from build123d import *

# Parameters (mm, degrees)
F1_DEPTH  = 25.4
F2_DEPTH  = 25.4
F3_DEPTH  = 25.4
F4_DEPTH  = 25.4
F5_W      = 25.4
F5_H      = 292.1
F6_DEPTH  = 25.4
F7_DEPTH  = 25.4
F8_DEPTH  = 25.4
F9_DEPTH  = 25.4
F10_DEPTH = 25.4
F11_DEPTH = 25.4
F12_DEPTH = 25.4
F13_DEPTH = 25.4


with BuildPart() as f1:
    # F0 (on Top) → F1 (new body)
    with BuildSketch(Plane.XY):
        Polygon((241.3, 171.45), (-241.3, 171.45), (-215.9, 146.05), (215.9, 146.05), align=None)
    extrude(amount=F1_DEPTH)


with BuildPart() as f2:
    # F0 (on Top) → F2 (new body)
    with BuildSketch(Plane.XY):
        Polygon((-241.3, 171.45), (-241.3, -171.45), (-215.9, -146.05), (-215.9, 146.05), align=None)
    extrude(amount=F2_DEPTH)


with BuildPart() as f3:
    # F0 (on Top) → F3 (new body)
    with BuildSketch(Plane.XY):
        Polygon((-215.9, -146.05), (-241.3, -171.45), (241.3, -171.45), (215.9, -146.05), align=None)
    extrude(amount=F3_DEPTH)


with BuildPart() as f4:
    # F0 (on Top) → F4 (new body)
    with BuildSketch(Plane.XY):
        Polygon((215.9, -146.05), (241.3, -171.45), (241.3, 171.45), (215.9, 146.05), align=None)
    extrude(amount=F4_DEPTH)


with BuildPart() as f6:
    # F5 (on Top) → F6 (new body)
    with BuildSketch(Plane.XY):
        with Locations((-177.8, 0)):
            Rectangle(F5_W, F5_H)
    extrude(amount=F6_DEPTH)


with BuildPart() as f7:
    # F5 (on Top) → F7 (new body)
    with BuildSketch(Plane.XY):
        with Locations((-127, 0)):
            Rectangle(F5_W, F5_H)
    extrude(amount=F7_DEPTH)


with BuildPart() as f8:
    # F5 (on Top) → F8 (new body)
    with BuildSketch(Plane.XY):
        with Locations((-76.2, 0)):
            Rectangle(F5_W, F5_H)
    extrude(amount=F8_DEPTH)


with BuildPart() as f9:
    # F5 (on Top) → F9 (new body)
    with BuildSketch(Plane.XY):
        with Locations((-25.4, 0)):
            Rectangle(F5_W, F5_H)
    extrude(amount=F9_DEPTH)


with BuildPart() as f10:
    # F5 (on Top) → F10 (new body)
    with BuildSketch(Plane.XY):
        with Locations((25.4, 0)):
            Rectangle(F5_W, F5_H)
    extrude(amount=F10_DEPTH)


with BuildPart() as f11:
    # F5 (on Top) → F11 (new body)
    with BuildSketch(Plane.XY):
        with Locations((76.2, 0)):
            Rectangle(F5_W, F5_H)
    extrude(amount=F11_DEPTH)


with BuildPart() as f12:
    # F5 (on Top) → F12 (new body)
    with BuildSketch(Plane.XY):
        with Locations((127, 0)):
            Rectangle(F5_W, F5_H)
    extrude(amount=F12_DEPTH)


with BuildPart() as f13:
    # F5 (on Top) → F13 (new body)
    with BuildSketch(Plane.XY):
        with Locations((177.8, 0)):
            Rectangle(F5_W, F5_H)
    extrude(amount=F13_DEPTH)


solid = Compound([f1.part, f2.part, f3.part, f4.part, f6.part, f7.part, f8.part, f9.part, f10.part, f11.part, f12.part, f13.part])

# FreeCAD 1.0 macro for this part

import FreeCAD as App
import Part
import Sketcher

V = App.Vector
Q = App.Units.Quantity

doc = App.newDocument("Part")
params = doc.addObject("Spreadsheet::Sheet", "Params")
for row, (alias, value) in enumerate([
    ("sketch1_width", "19 in"),
    ("sketch1_width2", "17 in"),
    ("pad1_length", "1 in"),
    ("sketch2_height", "13.5 in"),
    ("sketch2_height2", "11.5 in"),
    ("pad2_length", "1 in"),
    ("sketch3_width", "19 in"),
    ("sketch3_width2", "17 in"),
    ("pad3_length", "1 in"),
    ("sketch4_height", "13.5 in"),
    ("sketch4_height2", "11.5 in"),
    ("pad4_length", "1 in"),
    ("sketch5_width", "1 in"),
    ("sketch5_height", "11.5 in"),
    ("pad5_length", "1 in"),
    ("sketch6_width", "1 in"),
    ("sketch6_height", "11.5 in"),
    ("pad6_length", "1 in"),
    ("sketch7_width", "1 in"),
    ("sketch7_height", "11.5 in"),
    ("pad7_length", "1 in"),
    ("sketch8_width", "1 in"),
    ("sketch8_height", "11.5 in"),
    ("pad8_length", "1 in"),
    ("sketch9_width", "1 in"),
    ("sketch9_height", "11.5 in"),
    ("pad9_length", "1 in"),
    ("sketch10_width", "1 in"),
    ("sketch10_height", "11.5 in"),
    ("pad10_length", "1 in"),
    ("sketch11_width", "1 in"),
    ("sketch11_height", "11.5 in"),
    ("pad11_length", "1 in"),
    ("sketch12_width", "1 in"),
    ("sketch12_height", "11.5 in"),
    ("pad12_length", "1 in"),
], start=1):
    params.set(f"A{row}", alias)
    params.set(f"B{row}", "=" + value)
    params.setAlias(f"B{row}", alias)

body = doc.addObject("PartDesign::Body", "Body")

# Sketch on XY plane
sketch1 = body.newObject("Sketcher::SketchObject", "Sketch")
sketch1.AttachmentSupport = (doc.getObject("XY_Plane"), [""])
sketch1.MapMode = "FlatFace"
sketch1.addGeometry([
    Part.LineSegment(V(241, 171, 0), V(-241, 171, 0)),
    Part.LineSegment(V(-241, 171, 0), V(-216, 146, 0)),
    Part.LineSegment(V(-216, 146, 0), V(216, 146, 0)),
    Part.LineSegment(V(216, 146, 0), V(241, 171, 0)),
], False)
sketch1.addConstraint([
    Sketcher.Constraint("Coincident", 0, 2, 1, 1),
    Sketcher.Constraint("Coincident", 1, 2, 2, 1),
    Sketcher.Constraint("Coincident", 2, 2, 3, 1),
    Sketcher.Constraint("Coincident", 3, 2, 0, 1),
    Sketcher.Constraint("Horizontal", 0),
    Sketcher.Constraint("Horizontal", 2),
    Sketcher.Constraint("Perpendicular", 1, 3),
    Sketcher.Constraint("Equal", 1, 3),
    Sketcher.Constraint("DistanceX", 0, 2, 0, 1, Q("19 in")),
    Sketcher.Constraint("DistanceX", 2, 1, 2, 2, Q("17 in")),
    Sketcher.Constraint("DistanceX", 0, 2, -1, 1, Q("9.5 in")),
    Sketcher.Constraint("DistanceY", -1, 1, 0, 2, Q("6.75 in")),
])
sketch1.setExpression("Constraints[8]", "Params.sketch1_width")
sketch1.setExpression("Constraints[9]", "Params.sketch1_width2")
pad1 = body.newObject("PartDesign::Pad", "Pad")
pad1.Profile = sketch1
pad1.setExpression("Length", "Params.pad1_length")
body2 = doc.addObject("PartDesign::Body", "Body001")

# Sketch on XY plane
sketch2 = body2.newObject("Sketcher::SketchObject", "Sketch001")
sketch2.AttachmentSupport = (doc.getObject("XY_Plane001"), [""])
sketch2.MapMode = "FlatFace"
sketch2.addGeometry([
    Part.LineSegment(V(-241, 171, 0), V(-241, -171, 0)),
    Part.LineSegment(V(-241, -171, 0), V(-216, -146, 0)),
    Part.LineSegment(V(-216, -146, 0), V(-216, 146, 0)),
    Part.LineSegment(V(-216, 146, 0), V(-241, 171, 0)),
], False)
sketch2.addConstraint([
    Sketcher.Constraint("Coincident", 0, 2, 1, 1),
    Sketcher.Constraint("Coincident", 1, 2, 2, 1),
    Sketcher.Constraint("Coincident", 2, 2, 3, 1),
    Sketcher.Constraint("Coincident", 3, 2, 0, 1),
    Sketcher.Constraint("Vertical", 0),
    Sketcher.Constraint("Vertical", 2),
    Sketcher.Constraint("Perpendicular", 1, 3),
    Sketcher.Constraint("Equal", 1, 3),
    Sketcher.Constraint("DistanceY", 0, 2, 0, 1, Q("13.5 in")),
    Sketcher.Constraint("DistanceY", 2, 1, 2, 2, Q("11.5 in")),
    Sketcher.Constraint("DistanceX", 0, 2, -1, 1, Q("9.5 in")),
    Sketcher.Constraint("DistanceY", 0, 2, -1, 1, Q("6.75 in")),
])
sketch2.setExpression("Constraints[8]", "Params.sketch2_height")
sketch2.setExpression("Constraints[9]", "Params.sketch2_height2")
pad2 = body2.newObject("PartDesign::Pad", "Pad001")
pad2.Profile = sketch2
pad2.setExpression("Length", "Params.pad2_length")
body3 = doc.addObject("PartDesign::Body", "Body002")

# Sketch on XY plane
sketch3 = body3.newObject("Sketcher::SketchObject", "Sketch002")
sketch3.AttachmentSupport = (doc.getObject("XY_Plane002"), [""])
sketch3.MapMode = "FlatFace"
sketch3.addGeometry([
    Part.LineSegment(V(-216, -146, 0), V(-241, -171, 0)),
    Part.LineSegment(V(-241, -171, 0), V(241, -171, 0)),
    Part.LineSegment(V(241, -171, 0), V(216, -146, 0)),
    Part.LineSegment(V(216, -146, 0), V(-216, -146, 0)),
], False)
sketch3.addConstraint([
    Sketcher.Constraint("Coincident", 0, 2, 1, 1),
    Sketcher.Constraint("Coincident", 1, 2, 2, 1),
    Sketcher.Constraint("Coincident", 2, 2, 3, 1),
    Sketcher.Constraint("Coincident", 3, 2, 0, 1),
    Sketcher.Constraint("Horizontal", 1),
    Sketcher.Constraint("Horizontal", 3),
    Sketcher.Constraint("Perpendicular", 0, 2),
    Sketcher.Constraint("Equal", 0, 2),
    Sketcher.Constraint("DistanceX", 1, 1, 1, 2, Q("19 in")),
    Sketcher.Constraint("DistanceX", 3, 2, 3, 1, Q("17 in")),
    Sketcher.Constraint("DistanceX", 0, 2, -1, 1, Q("9.5 in")),
    Sketcher.Constraint("DistanceY", 0, 2, -1, 1, Q("6.75 in")),
])
sketch3.setExpression("Constraints[8]", "Params.sketch3_width")
sketch3.setExpression("Constraints[9]", "Params.sketch3_width2")
pad3 = body3.newObject("PartDesign::Pad", "Pad002")
pad3.Profile = sketch3
pad3.setExpression("Length", "Params.pad3_length")
body4 = doc.addObject("PartDesign::Body", "Body003")

# Sketch on XY plane
sketch4 = body4.newObject("Sketcher::SketchObject", "Sketch003")
sketch4.AttachmentSupport = (doc.getObject("XY_Plane003"), [""])
sketch4.MapMode = "FlatFace"
sketch4.addGeometry([
    Part.LineSegment(V(216, -146, 0), V(241, -171, 0)),
    Part.LineSegment(V(241, -171, 0), V(241, 171, 0)),
    Part.LineSegment(V(241, 171, 0), V(216, 146, 0)),
    Part.LineSegment(V(216, 146, 0), V(216, -146, 0)),
], False)
sketch4.addConstraint([
    Sketcher.Constraint("Coincident", 0, 2, 1, 1),
    Sketcher.Constraint("Coincident", 1, 2, 2, 1),
    Sketcher.Constraint("Coincident", 2, 2, 3, 1),
    Sketcher.Constraint("Coincident", 3, 2, 0, 1),
    Sketcher.Constraint("Vertical", 1),
    Sketcher.Constraint("Vertical", 3),
    Sketcher.Constraint("Perpendicular", 0, 2),
    Sketcher.Constraint("Equal", 0, 2),
    Sketcher.Constraint("DistanceY", 1, 1, 1, 2, Q("13.5 in")),
    Sketcher.Constraint("DistanceY", 3, 2, 3, 1, Q("11.5 in")),
    Sketcher.Constraint("DistanceX", -1, 1, 0, 2, Q("9.5 in")),
    Sketcher.Constraint("DistanceY", 0, 2, -1, 1, Q("6.75 in")),
])
sketch4.setExpression("Constraints[8]", "Params.sketch4_height")
sketch4.setExpression("Constraints[9]", "Params.sketch4_height2")
pad4 = body4.newObject("PartDesign::Pad", "Pad003")
pad4.Profile = sketch4
pad4.setExpression("Length", "Params.pad4_length")
body5 = doc.addObject("PartDesign::Body", "Body004")

# Sketch on XY plane
sketch5 = body5.newObject("Sketcher::SketchObject", "Sketch004")
sketch5.AttachmentSupport = (doc.getObject("XY_Plane004"), [""])
sketch5.MapMode = "FlatFace"
sketch5.addGeometry([
    Part.LineSegment(V(-190, 146, 0), V(-190, -146, 0)),
    Part.LineSegment(V(-190, -146, 0), V(-165, -146, 0)),
    Part.LineSegment(V(-165, -146, 0), V(-165, 146, 0)),
    Part.LineSegment(V(-165, 146, 0), V(-190, 146, 0)),
], False)
sketch5.addConstraint([
    Sketcher.Constraint("Coincident", 0, 2, 1, 1),
    Sketcher.Constraint("Coincident", 1, 2, 2, 1),
    Sketcher.Constraint("Coincident", 2, 2, 3, 1),
    Sketcher.Constraint("Coincident", 3, 2, 0, 1),
    Sketcher.Constraint("Vertical", 0),
    Sketcher.Constraint("Horizontal", 1),
    Sketcher.Constraint("Vertical", 2),
    Sketcher.Constraint("Horizontal", 3),
    Sketcher.Constraint("DistanceX", 1, 1, 1, 2, Q("1 in")),
    Sketcher.Constraint("DistanceY", 0, 2, 0, 1, Q("11.5 in")),
    Sketcher.Constraint("DistanceX", 0, 2, -1, 1, Q("7.5 in")),
    Sketcher.Constraint("DistanceY", 0, 2, -1, 1, Q("5.75 in")),
])
sketch5.setExpression("Constraints[8]", "Params.sketch5_width")
sketch5.setExpression("Constraints[9]", "Params.sketch5_height")
pad5 = body5.newObject("PartDesign::Pad", "Pad004")
pad5.Profile = sketch5
pad5.setExpression("Length", "Params.pad5_length")
body6 = doc.addObject("PartDesign::Body", "Body005")

# Sketch on XY plane
sketch6 = body6.newObject("Sketcher::SketchObject", "Sketch005")
sketch6.AttachmentSupport = (doc.getObject("XY_Plane005"), [""])
sketch6.MapMode = "FlatFace"
sketch6.addGeometry([
    Part.LineSegment(V(-140, 146, 0), V(-140, -146, 0)),
    Part.LineSegment(V(-140, -146, 0), V(-114, -146, 0)),
    Part.LineSegment(V(-114, -146, 0), V(-114, 146, 0)),
    Part.LineSegment(V(-114, 146, 0), V(-140, 146, 0)),
], False)
sketch6.addConstraint([
    Sketcher.Constraint("Coincident", 0, 2, 1, 1),
    Sketcher.Constraint("Coincident", 1, 2, 2, 1),
    Sketcher.Constraint("Coincident", 2, 2, 3, 1),
    Sketcher.Constraint("Coincident", 3, 2, 0, 1),
    Sketcher.Constraint("Vertical", 0),
    Sketcher.Constraint("Horizontal", 1),
    Sketcher.Constraint("Vertical", 2),
    Sketcher.Constraint("Horizontal", 3),
    Sketcher.Constraint("DistanceX", 1, 1, 1, 2, Q("1 in")),
    Sketcher.Constraint("DistanceY", 0, 2, 0, 1, Q("11.5 in")),
    Sketcher.Constraint("DistanceX", 0, 2, -1, 1, Q("5.5 in")),
    Sketcher.Constraint("DistanceY", 0, 2, -1, 1, Q("5.75 in")),
])
sketch6.setExpression("Constraints[8]", "Params.sketch6_width")
sketch6.setExpression("Constraints[9]", "Params.sketch6_height")
pad6 = body6.newObject("PartDesign::Pad", "Pad005")
pad6.Profile = sketch6
pad6.setExpression("Length", "Params.pad6_length")
body7 = doc.addObject("PartDesign::Body", "Body006")

# Sketch on XY plane
sketch7 = body7.newObject("Sketcher::SketchObject", "Sketch006")
sketch7.AttachmentSupport = (doc.getObject("XY_Plane006"), [""])
sketch7.MapMode = "FlatFace"
sketch7.addGeometry([
    Part.LineSegment(V(-89, 146, 0), V(-89, -146, 0)),
    Part.LineSegment(V(-89, -146, 0), V(-64, -146, 0)),
    Part.LineSegment(V(-64, -146, 0), V(-64, 146, 0)),
    Part.LineSegment(V(-64, 146, 0), V(-89, 146, 0)),
], False)
sketch7.addConstraint([
    Sketcher.Constraint("Coincident", 0, 2, 1, 1),
    Sketcher.Constraint("Coincident", 1, 2, 2, 1),
    Sketcher.Constraint("Coincident", 2, 2, 3, 1),
    Sketcher.Constraint("Coincident", 3, 2, 0, 1),
    Sketcher.Constraint("Vertical", 0),
    Sketcher.Constraint("Horizontal", 1),
    Sketcher.Constraint("Vertical", 2),
    Sketcher.Constraint("Horizontal", 3),
    Sketcher.Constraint("DistanceX", 1, 1, 1, 2, Q("1 in")),
    Sketcher.Constraint("DistanceY", 0, 2, 0, 1, Q("11.5 in")),
    Sketcher.Constraint("DistanceX", 0, 2, -1, 1, Q("3.5 in")),
    Sketcher.Constraint("DistanceY", 0, 2, -1, 1, Q("5.75 in")),
])
sketch7.setExpression("Constraints[8]", "Params.sketch7_width")
sketch7.setExpression("Constraints[9]", "Params.sketch7_height")
pad7 = body7.newObject("PartDesign::Pad", "Pad006")
pad7.Profile = sketch7
pad7.setExpression("Length", "Params.pad7_length")
body8 = doc.addObject("PartDesign::Body", "Body007")

# Sketch on XY plane
sketch8 = body8.newObject("Sketcher::SketchObject", "Sketch007")
sketch8.AttachmentSupport = (doc.getObject("XY_Plane007"), [""])
sketch8.MapMode = "FlatFace"
sketch8.addGeometry([
    Part.LineSegment(V(-38, 146, 0), V(-38, -146, 0)),
    Part.LineSegment(V(-38, -146, 0), V(-13, -146, 0)),
    Part.LineSegment(V(-13, -146, 0), V(-13, 146, 0)),
    Part.LineSegment(V(-13, 146, 0), V(-38, 146, 0)),
], False)
sketch8.addConstraint([
    Sketcher.Constraint("Coincident", 0, 2, 1, 1),
    Sketcher.Constraint("Coincident", 1, 2, 2, 1),
    Sketcher.Constraint("Coincident", 2, 2, 3, 1),
    Sketcher.Constraint("Coincident", 3, 2, 0, 1),
    Sketcher.Constraint("Vertical", 0),
    Sketcher.Constraint("Horizontal", 1),
    Sketcher.Constraint("Vertical", 2),
    Sketcher.Constraint("Horizontal", 3),
    Sketcher.Constraint("DistanceX", 1, 1, 1, 2, Q("1 in")),
    Sketcher.Constraint("DistanceY", 0, 2, 0, 1, Q("11.5 in")),
    Sketcher.Constraint("DistanceX", 0, 2, -1, 1, Q("1.5 in")),
    Sketcher.Constraint("DistanceY", 0, 2, -1, 1, Q("5.75 in")),
])
sketch8.setExpression("Constraints[8]", "Params.sketch8_width")
sketch8.setExpression("Constraints[9]", "Params.sketch8_height")
pad8 = body8.newObject("PartDesign::Pad", "Pad007")
pad8.Profile = sketch8
pad8.setExpression("Length", "Params.pad8_length")
body9 = doc.addObject("PartDesign::Body", "Body008")

# Sketch on XY plane
sketch9 = body9.newObject("Sketcher::SketchObject", "Sketch008")
sketch9.AttachmentSupport = (doc.getObject("XY_Plane008"), [""])
sketch9.MapMode = "FlatFace"
sketch9.addGeometry([
    Part.LineSegment(V(13, 146, 0), V(13, -146, 0)),
    Part.LineSegment(V(13, -146, 0), V(38, -146, 0)),
    Part.LineSegment(V(38, -146, 0), V(38, 146, 0)),
    Part.LineSegment(V(38, 146, 0), V(13, 146, 0)),
], False)
sketch9.addConstraint([
    Sketcher.Constraint("Coincident", 0, 2, 1, 1),
    Sketcher.Constraint("Coincident", 1, 2, 2, 1),
    Sketcher.Constraint("Coincident", 2, 2, 3, 1),
    Sketcher.Constraint("Coincident", 3, 2, 0, 1),
    Sketcher.Constraint("Vertical", 0),
    Sketcher.Constraint("Horizontal", 1),
    Sketcher.Constraint("Vertical", 2),
    Sketcher.Constraint("Horizontal", 3),
    Sketcher.Constraint("DistanceX", 1, 1, 1, 2, Q("1 in")),
    Sketcher.Constraint("DistanceY", 0, 2, 0, 1, Q("11.5 in")),
    Sketcher.Constraint("DistanceX", -1, 1, 0, 2, Q("0.5 in")),
    Sketcher.Constraint("DistanceY", 0, 2, -1, 1, Q("5.75 in")),
])
sketch9.setExpression("Constraints[8]", "Params.sketch9_width")
sketch9.setExpression("Constraints[9]", "Params.sketch9_height")
pad9 = body9.newObject("PartDesign::Pad", "Pad008")
pad9.Profile = sketch9
pad9.setExpression("Length", "Params.pad9_length")
body10 = doc.addObject("PartDesign::Body", "Body009")

# Sketch on XY plane
sketch10 = body10.newObject("Sketcher::SketchObject", "Sketch009")
sketch10.AttachmentSupport = (doc.getObject("XY_Plane009"), [""])
sketch10.MapMode = "FlatFace"
sketch10.addGeometry([
    Part.LineSegment(V(64, 146, 0), V(64, -146, 0)),
    Part.LineSegment(V(64, -146, 0), V(89, -146, 0)),
    Part.LineSegment(V(89, -146, 0), V(89, 146, 0)),
    Part.LineSegment(V(89, 146, 0), V(64, 146, 0)),
], False)
sketch10.addConstraint([
    Sketcher.Constraint("Coincident", 0, 2, 1, 1),
    Sketcher.Constraint("Coincident", 1, 2, 2, 1),
    Sketcher.Constraint("Coincident", 2, 2, 3, 1),
    Sketcher.Constraint("Coincident", 3, 2, 0, 1),
    Sketcher.Constraint("Vertical", 0),
    Sketcher.Constraint("Horizontal", 1),
    Sketcher.Constraint("Vertical", 2),
    Sketcher.Constraint("Horizontal", 3),
    Sketcher.Constraint("DistanceX", 1, 1, 1, 2, Q("1 in")),
    Sketcher.Constraint("DistanceY", 0, 2, 0, 1, Q("11.5 in")),
    Sketcher.Constraint("DistanceX", -1, 1, 0, 2, Q("2.5 in")),
    Sketcher.Constraint("DistanceY", 0, 2, -1, 1, Q("5.75 in")),
])
sketch10.setExpression("Constraints[8]", "Params.sketch10_width")
sketch10.setExpression("Constraints[9]", "Params.sketch10_height")
pad10 = body10.newObject("PartDesign::Pad", "Pad009")
pad10.Profile = sketch10
pad10.setExpression("Length", "Params.pad10_length")
body11 = doc.addObject("PartDesign::Body", "Body010")

# Sketch on XY plane
sketch11 = body11.newObject("Sketcher::SketchObject", "Sketch010")
sketch11.AttachmentSupport = (doc.getObject("XY_Plane010"), [""])
sketch11.MapMode = "FlatFace"
sketch11.addGeometry([
    Part.LineSegment(V(114, 146, 0), V(114, -146, 0)),
    Part.LineSegment(V(114, -146, 0), V(140, -146, 0)),
    Part.LineSegment(V(140, -146, 0), V(140, 146, 0)),
    Part.LineSegment(V(140, 146, 0), V(114, 146, 0)),
], False)
sketch11.addConstraint([
    Sketcher.Constraint("Coincident", 0, 2, 1, 1),
    Sketcher.Constraint("Coincident", 1, 2, 2, 1),
    Sketcher.Constraint("Coincident", 2, 2, 3, 1),
    Sketcher.Constraint("Coincident", 3, 2, 0, 1),
    Sketcher.Constraint("Vertical", 0),
    Sketcher.Constraint("Horizontal", 1),
    Sketcher.Constraint("Vertical", 2),
    Sketcher.Constraint("Horizontal", 3),
    Sketcher.Constraint("DistanceX", 1, 1, 1, 2, Q("1 in")),
    Sketcher.Constraint("DistanceY", 0, 2, 0, 1, Q("11.5 in")),
    Sketcher.Constraint("DistanceX", -1, 1, 0, 2, Q("4.5 in")),
    Sketcher.Constraint("DistanceY", 0, 2, -1, 1, Q("5.75 in")),
])
sketch11.setExpression("Constraints[8]", "Params.sketch11_width")
sketch11.setExpression("Constraints[9]", "Params.sketch11_height")
pad11 = body11.newObject("PartDesign::Pad", "Pad010")
pad11.Profile = sketch11
pad11.setExpression("Length", "Params.pad11_length")
body12 = doc.addObject("PartDesign::Body", "Body011")

# Sketch on XY plane
sketch12 = body12.newObject("Sketcher::SketchObject", "Sketch011")
sketch12.AttachmentSupport = (doc.getObject("XY_Plane011"), [""])
sketch12.MapMode = "FlatFace"
sketch12.addGeometry([
    Part.LineSegment(V(165, 146, 0), V(165, -146, 0)),
    Part.LineSegment(V(165, -146, 0), V(190, -146, 0)),
    Part.LineSegment(V(190, -146, 0), V(190, 146, 0)),
    Part.LineSegment(V(190, 146, 0), V(165, 146, 0)),
], False)
sketch12.addConstraint([
    Sketcher.Constraint("Coincident", 0, 2, 1, 1),
    Sketcher.Constraint("Coincident", 1, 2, 2, 1),
    Sketcher.Constraint("Coincident", 2, 2, 3, 1),
    Sketcher.Constraint("Coincident", 3, 2, 0, 1),
    Sketcher.Constraint("Vertical", 0),
    Sketcher.Constraint("Horizontal", 1),
    Sketcher.Constraint("Vertical", 2),
    Sketcher.Constraint("Horizontal", 3),
    Sketcher.Constraint("DistanceX", 1, 1, 1, 2, Q("1 in")),
    Sketcher.Constraint("DistanceY", 0, 2, 0, 1, Q("11.5 in")),
    Sketcher.Constraint("DistanceX", -1, 1, 0, 2, Q("6.5 in")),
    Sketcher.Constraint("DistanceY", 0, 2, -1, 1, Q("5.75 in")),
])
sketch12.setExpression("Constraints[8]", "Params.sketch12_width")
sketch12.setExpression("Constraints[9]", "Params.sketch12_height")
pad12 = body12.newObject("PartDesign::Pad", "Pad011")
pad12.Profile = sketch12
pad12.setExpression("Length", "Params.pad12_length")

doc.recompute()
